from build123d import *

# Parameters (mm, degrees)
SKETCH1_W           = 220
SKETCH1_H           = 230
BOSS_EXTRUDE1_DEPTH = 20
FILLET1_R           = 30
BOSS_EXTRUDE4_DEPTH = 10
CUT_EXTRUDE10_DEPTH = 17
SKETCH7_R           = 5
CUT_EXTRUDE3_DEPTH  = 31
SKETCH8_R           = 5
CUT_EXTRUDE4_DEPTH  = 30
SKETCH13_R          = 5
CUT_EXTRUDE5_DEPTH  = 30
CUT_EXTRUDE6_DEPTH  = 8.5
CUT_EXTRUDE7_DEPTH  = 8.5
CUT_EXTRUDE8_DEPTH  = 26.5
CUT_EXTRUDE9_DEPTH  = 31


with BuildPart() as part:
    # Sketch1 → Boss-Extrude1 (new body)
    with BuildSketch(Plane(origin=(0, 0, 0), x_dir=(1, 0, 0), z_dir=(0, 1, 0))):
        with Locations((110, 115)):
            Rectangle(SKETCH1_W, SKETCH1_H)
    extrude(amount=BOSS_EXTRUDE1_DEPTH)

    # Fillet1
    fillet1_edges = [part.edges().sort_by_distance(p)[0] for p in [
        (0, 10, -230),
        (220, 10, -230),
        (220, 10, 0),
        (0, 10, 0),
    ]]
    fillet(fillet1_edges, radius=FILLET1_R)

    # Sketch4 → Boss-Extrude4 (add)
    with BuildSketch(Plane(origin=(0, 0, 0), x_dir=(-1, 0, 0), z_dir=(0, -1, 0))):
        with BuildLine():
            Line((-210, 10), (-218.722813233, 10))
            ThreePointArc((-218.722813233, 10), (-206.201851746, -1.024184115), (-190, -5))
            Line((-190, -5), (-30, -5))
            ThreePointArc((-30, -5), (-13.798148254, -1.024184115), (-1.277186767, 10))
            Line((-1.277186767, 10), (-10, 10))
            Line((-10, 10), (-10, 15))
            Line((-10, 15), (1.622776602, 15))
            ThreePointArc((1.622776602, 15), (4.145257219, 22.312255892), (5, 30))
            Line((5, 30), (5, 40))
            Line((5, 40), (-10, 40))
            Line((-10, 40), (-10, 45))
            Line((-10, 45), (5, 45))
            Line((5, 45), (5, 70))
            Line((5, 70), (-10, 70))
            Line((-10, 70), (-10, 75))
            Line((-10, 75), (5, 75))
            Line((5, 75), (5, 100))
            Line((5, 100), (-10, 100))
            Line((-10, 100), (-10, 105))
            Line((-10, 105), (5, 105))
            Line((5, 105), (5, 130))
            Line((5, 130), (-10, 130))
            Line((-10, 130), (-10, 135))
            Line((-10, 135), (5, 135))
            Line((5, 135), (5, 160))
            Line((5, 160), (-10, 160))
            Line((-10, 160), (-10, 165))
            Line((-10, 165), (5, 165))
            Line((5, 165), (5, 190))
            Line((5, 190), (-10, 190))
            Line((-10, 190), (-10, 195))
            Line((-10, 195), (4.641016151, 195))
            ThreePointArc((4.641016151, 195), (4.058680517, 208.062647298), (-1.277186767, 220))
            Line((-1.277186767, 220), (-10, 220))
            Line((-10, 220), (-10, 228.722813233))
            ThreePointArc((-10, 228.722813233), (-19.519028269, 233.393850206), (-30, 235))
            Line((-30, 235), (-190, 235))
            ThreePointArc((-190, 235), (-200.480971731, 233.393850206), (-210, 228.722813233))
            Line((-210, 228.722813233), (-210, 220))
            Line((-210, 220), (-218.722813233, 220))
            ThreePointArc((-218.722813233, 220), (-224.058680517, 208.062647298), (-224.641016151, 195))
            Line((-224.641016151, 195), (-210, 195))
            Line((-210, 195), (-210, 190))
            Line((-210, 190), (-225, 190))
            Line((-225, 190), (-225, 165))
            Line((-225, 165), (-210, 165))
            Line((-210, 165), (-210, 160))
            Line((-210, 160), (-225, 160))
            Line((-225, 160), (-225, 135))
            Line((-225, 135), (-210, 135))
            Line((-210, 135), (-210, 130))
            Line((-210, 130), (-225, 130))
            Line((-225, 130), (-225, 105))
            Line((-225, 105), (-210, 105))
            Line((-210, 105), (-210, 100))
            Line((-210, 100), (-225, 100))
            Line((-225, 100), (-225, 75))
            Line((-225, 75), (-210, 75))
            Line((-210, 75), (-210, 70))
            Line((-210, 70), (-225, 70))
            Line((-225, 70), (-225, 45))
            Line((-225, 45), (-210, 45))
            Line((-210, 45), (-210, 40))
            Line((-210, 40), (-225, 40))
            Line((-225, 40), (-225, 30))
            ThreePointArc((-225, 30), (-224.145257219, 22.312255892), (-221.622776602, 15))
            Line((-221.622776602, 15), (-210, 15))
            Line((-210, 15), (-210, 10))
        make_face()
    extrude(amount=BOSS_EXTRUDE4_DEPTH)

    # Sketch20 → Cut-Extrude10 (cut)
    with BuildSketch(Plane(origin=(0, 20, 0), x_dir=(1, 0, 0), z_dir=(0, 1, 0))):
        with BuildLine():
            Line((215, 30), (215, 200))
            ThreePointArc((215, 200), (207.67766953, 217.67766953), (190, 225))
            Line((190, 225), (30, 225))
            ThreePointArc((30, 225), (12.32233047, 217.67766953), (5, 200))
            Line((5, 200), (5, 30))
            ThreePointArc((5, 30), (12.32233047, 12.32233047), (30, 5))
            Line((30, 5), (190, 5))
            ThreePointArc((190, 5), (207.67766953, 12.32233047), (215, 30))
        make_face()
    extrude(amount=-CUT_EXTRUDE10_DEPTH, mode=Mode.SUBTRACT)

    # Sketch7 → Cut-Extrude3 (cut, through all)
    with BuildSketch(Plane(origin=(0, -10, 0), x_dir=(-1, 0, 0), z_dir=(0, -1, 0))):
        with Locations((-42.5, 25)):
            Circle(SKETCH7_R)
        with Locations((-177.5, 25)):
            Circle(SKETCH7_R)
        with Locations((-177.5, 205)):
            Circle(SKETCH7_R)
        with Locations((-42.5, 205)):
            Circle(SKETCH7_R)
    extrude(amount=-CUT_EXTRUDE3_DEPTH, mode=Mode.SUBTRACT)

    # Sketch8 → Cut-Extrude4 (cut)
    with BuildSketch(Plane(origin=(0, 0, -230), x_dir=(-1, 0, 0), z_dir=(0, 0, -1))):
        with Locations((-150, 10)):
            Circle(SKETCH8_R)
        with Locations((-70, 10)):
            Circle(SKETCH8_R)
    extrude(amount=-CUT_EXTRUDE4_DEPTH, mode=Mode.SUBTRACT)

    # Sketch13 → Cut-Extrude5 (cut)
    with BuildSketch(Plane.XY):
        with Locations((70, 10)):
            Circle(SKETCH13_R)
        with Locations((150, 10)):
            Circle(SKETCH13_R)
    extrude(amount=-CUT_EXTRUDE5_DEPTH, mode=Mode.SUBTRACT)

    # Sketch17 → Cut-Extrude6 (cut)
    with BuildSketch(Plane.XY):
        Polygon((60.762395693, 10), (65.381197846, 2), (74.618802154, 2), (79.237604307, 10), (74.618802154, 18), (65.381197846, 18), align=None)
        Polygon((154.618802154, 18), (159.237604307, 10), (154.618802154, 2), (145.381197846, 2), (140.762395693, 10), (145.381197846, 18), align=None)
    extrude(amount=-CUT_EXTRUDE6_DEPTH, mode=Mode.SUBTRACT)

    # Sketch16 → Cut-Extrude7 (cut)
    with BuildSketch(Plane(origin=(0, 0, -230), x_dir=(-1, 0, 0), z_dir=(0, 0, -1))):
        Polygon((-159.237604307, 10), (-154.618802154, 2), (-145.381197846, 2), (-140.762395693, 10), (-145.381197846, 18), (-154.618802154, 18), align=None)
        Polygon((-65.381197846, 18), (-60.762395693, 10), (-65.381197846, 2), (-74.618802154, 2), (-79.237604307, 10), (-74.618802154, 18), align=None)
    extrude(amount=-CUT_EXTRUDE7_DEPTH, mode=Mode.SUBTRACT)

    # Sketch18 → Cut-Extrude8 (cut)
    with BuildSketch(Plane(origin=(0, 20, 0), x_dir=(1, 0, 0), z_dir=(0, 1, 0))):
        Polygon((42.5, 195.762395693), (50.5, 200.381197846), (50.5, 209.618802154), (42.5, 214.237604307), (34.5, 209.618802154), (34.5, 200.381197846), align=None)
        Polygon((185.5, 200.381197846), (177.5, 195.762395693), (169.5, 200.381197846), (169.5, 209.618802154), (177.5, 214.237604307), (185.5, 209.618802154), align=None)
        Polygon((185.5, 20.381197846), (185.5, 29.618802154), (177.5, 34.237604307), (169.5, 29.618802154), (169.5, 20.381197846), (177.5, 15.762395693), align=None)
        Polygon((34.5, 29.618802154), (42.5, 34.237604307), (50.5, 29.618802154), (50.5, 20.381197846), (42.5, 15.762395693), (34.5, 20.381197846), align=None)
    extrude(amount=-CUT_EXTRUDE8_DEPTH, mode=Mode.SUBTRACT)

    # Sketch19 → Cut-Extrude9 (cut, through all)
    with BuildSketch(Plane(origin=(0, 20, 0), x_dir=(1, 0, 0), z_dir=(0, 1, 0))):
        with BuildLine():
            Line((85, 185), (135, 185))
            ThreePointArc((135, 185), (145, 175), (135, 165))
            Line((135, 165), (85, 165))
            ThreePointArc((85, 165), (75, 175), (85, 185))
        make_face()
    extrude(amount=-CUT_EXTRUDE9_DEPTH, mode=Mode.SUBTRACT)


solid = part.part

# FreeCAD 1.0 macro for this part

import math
import FreeCAD as App
import Part
import Sketcher
Q = App.Units.Quantity


def edges_at(feature, points):
    """Names of the edges that pass closest to the given points."""
    edges = feature.Shape.Edges
    near = lambda p: min(range(len(edges)), key=lambda i: edges[i].distToShape(Part.Vertex(*p))[0])
    return sorted({f"Edge{near(p) + 1}" for p in points})

doc = App.newDocument("Part")
params = doc.addObject("Spreadsheet::Sheet", "Params")
for row, (alias, value) in enumerate([
    ("sketch1_width", "220 mm"),
    ("sketch1_height", "230 mm"),
    ("pad1_length", "20 mm"),
    ("fillet_radius", "30 mm"),
    ("sketch2_radius", "35 mm"),
    ("sketch2_width", "160 mm"),
    ("sketch2_width2", "15 mm"),
    ("sketch2_height", "5 mm"),
    ("sketch2_height2", "10 mm"),
    ("pad2_length", "10 mm"),
    ("sketch3_radius", "25 mm"),
    ("sketch3_width", "160 mm"),
    ("sketch3_height", "170 mm"),
    ("pocket1_length", "17 mm"),
    ("sketch4_diameter", "10 mm"),
    ("sketch5_diameter", "10 mm"),
    ("pocket3_length", "30 mm"),
    ("sketch6_diameter", "10 mm"),
    ("pocket4_length", "30 mm"),
    ("pocket5_length", "8.5 mm"),
    ("pocket6_length", "8.5 mm"),
    ("pocket7_length", "26.5 mm"),
    ("sketch10_radius", "10 mm"),
    ("sketch10_width", "50 mm"),
], start=1):
    params.set(f"A{row}", alias)
    params.set(f"B{row}", "=" + value)
    params.setAlias(f"B{row}", alias)

body = doc.addObject("PartDesign::Body", "Body")

# Sketch on XZ plane
sketch1 = body.newObject("Sketcher::SketchObject", "Sketch")
sketch1.AttachmentSupport = (doc.getObject("XZ_Plane"), [""])
sketch1.MapMode = "FlatFace"
sketch1.addGeometry(Part.LineSegment(App.Vector(0, -230, 0), App.Vector(0, 0, 0)), False)
sketch1.addGeometry(Part.LineSegment(App.Vector(0, 0, 0), App.Vector(220, 0, 0)), False)
sketch1.addGeometry(Part.LineSegment(App.Vector(220, 0, 0), App.Vector(220, -230, 0)), False)
sketch1.addGeometry(Part.LineSegment(App.Vector(220, -230, 0), App.Vector(0, -230, 0)), False)
sketch1.addConstraint(Sketcher.Constraint("Coincident", 0, 2, 1, 1))
sketch1.addConstraint(Sketcher.Constraint("Coincident", 1, 2, 2, 1))
sketch1.addConstraint(Sketcher.Constraint("Coincident", 2, 2, 3, 1))
sketch1.addConstraint(Sketcher.Constraint("Coincident", 3, 2, 0, 1))
sketch1.addConstraint(Sketcher.Constraint("Vertical", 0))
sketch1.addConstraint(Sketcher.Constraint("Horizontal", 1))
sketch1.addConstraint(Sketcher.Constraint("Vertical", 2))
sketch1.addConstraint(Sketcher.Constraint("Horizontal", 3))
sketch1.addConstraint(Sketcher.Constraint("Coincident", 0, 2, -1, 1))
sketch1.addConstraint(Sketcher.Constraint("DistanceX", 1, 1, 1, 2, 220.0))
sketch1.addConstraint(Sketcher.Constraint("DistanceY", 0, 1, 0, 2, 230.0))
sketch1.setExpression("Constraints[9]", "Params.sketch1_width")
sketch1.setExpression("Constraints[10]", "Params.sketch1_height")
pad1 = body.newObject("PartDesign::Pad", "Pad")
pad1.Profile = sketch1
pad1.setExpression("Length", "Params.pad1_length")
pad1.Reversed = True
doc.recompute()

fillet = body.newObject("PartDesign::Fillet", "Fillet")
fillet.Base = (pad1, edges_at(pad1, [
    (0, 10, -230),
    (220, 10, -230),
    (220, 10, 0),
    (0, 10, 0),
]))
fillet.setExpression("Radius", "Params.fillet_radius")

# Sketch on XZ plane
sketch2 = body.newObject("Sketcher::SketchObject", "Sketch001")
sketch2.AttachmentSupport = (doc.getObject("XZ_Plane"), [""])
sketch2.MapMode = "FlatFace"
sketch2.addGeometry(Part.LineSegment(App.Vector(210, -10, 0), App.Vector(219, -10, 0)), False)
sketch2.addGeometry(Part.ArcOfCircle(Part.Circle(App.Vector(190, -30, 0), App.Vector(0, 0, 1), 35), math.radians(35), math.radians(90)), False)
sketch2.addGeometry(Part.LineSegment(App.Vector(190, 5, 0), App.Vector(30, 5, 0)), False)
sketch2.addGeometry(Part.ArcOfCircle(Part.Circle(App.Vector(30, -30, 0), App.Vector(0, 0, 1), 35), math.radians(90), math.radians(145)), False)
sketch2.addGeometry(Part.LineSegment(App.Vector(1, -10, 0), App.Vector(10, -10, 0)), False)
sketch2.addGeometry(Part.LineSegment(App.Vector(10, -10, 0), App.Vector(10, -15, 0)), False)
sketch2.addGeometry(Part.LineSegment(App.Vector(10, -15, 0), App.Vector(-2, -15, 0)), False)
sketch2.addGeometry(Part.ArcOfCircle(Part.Circle(App.Vector(30, -30, 0), App.Vector(0, 0, 1), 35), math.radians(155), math.radians(180)), False)
sketch2.addGeometry(Part.LineSegment(App.Vector(-5, -30, 0), App.Vector(-5, -40, 0)), False)
sketch2.addGeometry(Part.LineSegment(App.Vector(-5, -40, 0), App.Vector(10, -40, 0)), False)
sketch2.addGeometry(Part.LineSegment(App.Vector(10, -40, 0), App.Vector(10, -45, 0)), False)
sketch2.addGeometry(Part.LineSegment(App.Vector(10, -45, 0), App.Vector(-5, -45, 0)), False)
sketch2.addGeometry(Part.LineSegment(App.Vector(-5, -45, 0), App.Vector(-5, -70, 0)), False)
sketch2.addGeometry(Part.LineSegment(App.Vector(-5, -70, 0), App.Vector(10, -70, 0)), False)
sketch2.addGeometry(Part.LineSegment(App.Vector(10, -70, 0), App.Vector(10, -75, 0)), False)
sketch2.addGeometry(Part.LineSegment(App.Vector(10, -75, 0), App.Vector(-5, -75, 0)), False)
sketch2.addGeometry(Part.LineSegment(App.Vector(-5, -75, 0), App.Vector(-5, -100, 0)), False)
sketch2.addGeometry(Part.LineSegment(App.Vector(-5, -100, 0), App.Vector(10, -100, 0)), False)
sketch2.addGeometry(Part.LineSegment(App.Vector(10, -100, 0), App.Vector(10, -105, 0)), False)
sketch2.addGeometry(Part.LineSegment(App.Vector(10, -105, 0), App.Vector(-5, -105, 0)), False)
sketch2.addGeometry(Part.LineSegment(App.Vector(-5, -105, 0), App.Vector(-5, -130, 0)), False)
sketch2.addGeometry(Part.LineSegment(App.Vector(-5, -130, 0), App.Vector(10, -130, 0)), False)
sketch2.addGeometry(Part.LineSegment(App.Vector(10, -130, 0), App.Vector(10, -135, 0)), False)
sketch2.addGeometry(Part.LineSegment(App.Vector(10, -135, 0), App.Vector(-5, -135, 0)), False)
sketch2.addGeometry(Part.LineSegment(App.Vector(-5, -135, 0), App.Vector(-5, -160, 0)), False)
sketch2.addGeometry(Part.LineSegment(App.Vector(-5, -160, 0), App.Vector(10, -160, 0)), False)
sketch2.addGeometry(Part.LineSegment(App.Vector(10, -160, 0), App.Vector(10, -165, 0)), False)
sketch2.addGeometry(Part.LineSegment(App.Vector(10, -165, 0), App.Vector(-5, -165, 0)), False)
sketch2.addGeometry(Part.LineSegment(App.Vector(-5, -165, 0), App.Vector(-5, -190, 0)), False)
sketch2.addGeometry(Part.LineSegment(App.Vector(-5, -190, 0), App.Vector(10, -190, 0)), False)
sketch2.addGeometry(Part.LineSegment(App.Vector(10, -190, 0), App.Vector(10, -195, 0)), False)
sketch2.addGeometry(Part.LineSegment(App.Vector(10, -195, 0), App.Vector(-5, -195, 0)), False)
sketch2.addGeometry(Part.ArcOfCircle(Part.Circle(App.Vector(30, -200, 0), App.Vector(0, 0, 1), 35), math.radians(172), math.radians(215)), False)
sketch2.addGeometry(Part.LineSegment(App.Vector(1, -220, 0), App.Vector(10, -220, 0)), False)
sketch2.addGeometry(Part.LineSegment(App.Vector(10, -220, 0), App.Vector(10, -229, 0)), False)
sketch2.addGeometry(Part.ArcOfCircle(Part.Circle(App.Vector(30, -200, 0), App.Vector(0, 0, 1), 35), math.radians(-125), math.radians(-90)), False)
sketch2.addGeometry(Part.LineSegment(App.Vector(30, -235, 0), App.Vector(190, -235, 0)), False)
sketch2.addGeometry(Part.ArcOfCircle(Part.Circle(App.Vector(190, -200, 0), App.Vector(0, 0, 1), 35), math.radians(-90), math.radians(-55)), False)
sketch2.addGeometry(Part.LineSegment(App.Vector(210, -229, 0), App.Vector(210, -220, 0)), False)
sketch2.addGeometry(Part.LineSegment(App.Vector(210, -220, 0), App.Vector(219, -220, 0)), False)
sketch2.addGeometry(Part.ArcOfCircle(Part.Circle(App.Vector(190, -200, 0), App.Vector(0, 0, 1), 35), math.radians(-35), math.radians(8)), False)
sketch2.addGeometry(Part.LineSegment(App.Vector(225, -195, 0), App.Vector(210, -195, 0)), False)
sketch2.addGeometry(Part.LineSegment(App.Vector(210, -195, 0), App.Vector(210, -190, 0)), False)
sketch2.addGeometry(Part.LineSegment(App.Vector(210, -190, 0), App.Vector(225, -190, 0)), False)
sketch2.addGeometry(Part.LineSegment(App.Vector(225, -190, 0), App.Vector(225, -165, 0)), False)
sketch2.addGeometry(Part.LineSegment(App.Vector(225, -165, 0), App.Vector(210, -165, 0)), False)
sketch2.addGeometry(Part.LineSegment(App.Vector(210, -165, 0), App.Vector(210, -160, 0)), False)
sketch2.addGeometry(Part.LineSegment(App.Vector(210, -160, 0), App.Vector(225, -160, 0)), False)
sketch2.addGeometry(Part.LineSegment(App.Vector(225, -160, 0), App.Vector(225, -135, 0)), False)
sketch2.addGeometry(Part.LineSegment(App.Vector(225, -135, 0), App.Vector(210, -135, 0)), False)
sketch2.addGeometry(Part.LineSegment(App.Vector(210, -135, 0), App.Vector(210, -130, 0)), False)
sketch2.addGeometry(Part.LineSegment(App.Vector(210, -130, 0), App.Vector(225, -130, 0)), False)
sketch2.addGeometry(Part.LineSegment(App.Vector(225, -130, 0), App.Vector(225, -105, 0)), False)
sketch2.addGeometry(Part.LineSegment(App.Vector(225, -105, 0), App.Vector(210, -105, 0)), False)
sketch2.addGeometry(Part.LineSegment(App.Vector(210, -105, 0), App.Vector(210, -100, 0)), False)
sketch2.addGeometry(Part.LineSegment(App.Vector(210, -100, 0), App.Vector(225, -100, 0)), False)
sketch2.addGeometry(Part.LineSegment(App.Vector(225, -100, 0), App.Vector(225, -75, 0)), False)
sketch2.addGeometry(Part.LineSegment(App.Vector(225, -75, 0), App.Vector(210, -75, 0)), False)
sketch2.addGeometry(Part.LineSegment(App.Vector(210, -75, 0), App.Vector(210, -70, 0)), False)
sketch2.addGeometry(Part.LineSegment(App.Vector(210, -70, 0), App.Vector(225, -70, 0)), False)
sketch2.addGeometry(Part.LineSegment(App.Vector(225, -70, 0), App.Vector(225, -45, 0)), False)
sketch2.addGeometry(Part.LineSegment(App.Vector(225, -45, 0), App.Vector(210, -45, 0)), False)
sketch2.addGeometry(Part.LineSegment(App.Vector(210, -45, 0), App.Vector(210, -40, 0)), False)
sketch2.addGeometry(Part.LineSegment(App.Vector(210, -40, 0), App.Vector(225, -40, 0)), False)
sketch2.addGeometry(Part.LineSegment(App.Vector(225, -40, 0), App.Vector(225, -30, 0)), False)
sketch2.addGeometry(Part.ArcOfCircle(Part.Circle(App.Vector(190, -30, 0), App.Vector(0, 0, 1), 35), math.radians(0), math.radians(25)), False)
sketch2.addGeometry(Part.LineSegment(App.Vector(222, -15, 0), App.Vector(210, -15, 0)), False)
sketch2.addGeometry(Part.LineSegment(App.Vector(210, -15, 0), App.Vector(210, -10, 0)), False)
sketch2.addConstraint(Sketcher.Constraint("Coincident", 0, 2, 1, 1))
sketch2.addConstraint(Sketcher.Constraint("Tangent", 1, 2, 2, 1))
sketch2.addConstraint(Sketcher.Constraint("Tangent", 2, 2, 3, 1))
sketch2.addConstraint(Sketcher.Constraint("Coincident", 3, 2, 4, 1))
sketch2.addConstraint(Sketcher.Constraint("Coincident", 4, 2, 5, 1))
sketch2.addConstraint(Sketcher.Constraint("Coincident", 5, 2, 6, 1))
sketch2.addConstraint(Sketcher.Constraint("Coincident", 6, 2, 7, 1))
sketch2.addConstraint(Sketcher.Constraint("Tangent", 7, 2, 8, 1))
sketch2.addConstraint(Sketcher.Constraint("Coincident", 8, 2, 9, 1))
sketch2.addConstraint(Sketcher.Constraint("Coincident", 9, 2, 10, 1))
sketch2.addConstraint(Sketcher.Constraint("Coincident", 10, 2, 11, 1))
sketch2.addConstraint(Sketcher.Constraint("Coincident", 11, 2, 12, 1))
sketch2.addConstraint(Sketcher.Constraint("Coincident", 12, 2, 13, 1))
sketch2.addConstraint(Sketcher.Constraint("Coincident", 13, 2, 14, 1))
sketch2.addConstraint(Sketcher.Constraint("Coincident", 14, 2, 15, 1))
sketch2.addConstraint(Sketcher.Constraint("Coincident", 15, 2, 16, 1))
sketch2.addConstraint(Sketcher.Constraint("Coincident", 16, 2, 17, 1))
sketch2.addConstraint(Sketcher.Constraint("Coincident", 17, 2, 18, 1))
sketch2.addConstraint(Sketcher.Constraint("Coincident", 18, 2, 19, 1))
sketch2.addConstraint(Sketcher.Constraint("Coincident", 19, 2, 20, 1))
sketch2.addConstraint(Sketcher.Constraint("Coincident", 20, 2, 21, 1))
sketch2.addConstraint(Sketcher.Constraint("Coincident", 21, 2, 22, 1))
sketch2.addConstraint(Sketcher.Constraint("Coincident", 22, 2, 23, 1))
sketch2.addConstraint(Sketcher.Constraint("Coincident", 23, 2, 24, 1))
sketch2.addConstraint(Sketcher.Constraint("Coincident", 24, 2, 25, 1))
sketch2.addConstraint(Sketcher.Constraint("Coincident", 25, 2, 26, 1))
sketch2.addConstraint(Sketcher.Constraint("Coincident", 26, 2, 27, 1))
sketch2.addConstraint(Sketcher.Constraint("Coincident", 27, 2, 28, 1))
sketch2.addConstraint(Sketcher.Constraint("Coincident", 28, 2, 29, 1))
sketch2.addConstraint(Sketcher.Constraint("Coincident", 29, 2, 30, 1))
sketch2.addConstraint(Sketcher.Constraint("Coincident", 30, 2, 31, 1))
sketch2.addConstraint(Sketcher.Constraint("Coincident", 31, 2, 32, 1))
sketch2.addConstraint(Sketcher.Constraint("Coincident", 32, 2, 33, 1))
sketch2.addConstraint(Sketcher.Constraint("Coincident", 33, 2, 34, 1))
sketch2.addConstraint(Sketcher.Constraint("Coincident", 34, 2, 35, 1))
sketch2.addConstraint(Sketcher.Constraint("Tangent", 35, 2, 36, 1))
sketch2.addConstraint(Sketcher.Constraint("Tangent", 36, 2, 37, 1))
sketch2.addConstraint(Sketcher.Constraint("Coincident", 37, 2, 38, 1))
sketch2.addConstraint(Sketcher.Constraint("Coincident", 38, 2, 39, 1))
sketch2.addConstraint(Sketcher.Constraint("Coincident", 39, 2, 40, 1))
sketch2.addConstraint(Sketcher.Constraint("Coincident", 40, 2, 41, 1))
sketch2.addConstraint(Sketcher.Constraint("Coincident", 41, 2, 42, 1))
sketch2.addConstraint(Sketcher.Constraint("Coincident", 42, 2, 43, 1))
sketch2.addConstraint(Sketcher.Constraint("Coincident", 43, 2, 44, 1))
sketch2.addConstraint(Sketcher.Constraint("Coincident", 44, 2, 45, 1))
sketch2.addConstraint(Sketcher.Constraint("Coincident", 45, 2, 46, 1))
sketch2.addConstraint(Sketcher.Constraint("Coincident", 46, 2, 47, 1))
sketch2.addConstraint(Sketcher.Constraint("Coincident", 47, 2, 48, 1))
sketch2.addConstraint(Sketcher.Constraint("Coincident", 48, 2, 49, 1))
sketch2.addConstraint(Sketcher.Constraint("Coincident", 49, 2, 50, 1))
sketch2.addConstraint(Sketcher.Constraint("Coincident", 50, 2, 51, 1))
sketch2.addConstraint(Sketcher.Constraint("Coincident", 51, 2, 52, 1))
sketch2.addConstraint(Sketcher.Constraint("Coincident", 52, 2, 53, 1))
sketch2.addConstraint(Sketcher.Constraint("Coincident", 53, 2, 54, 1))
sketch2.addConstraint(Sketcher.Constraint("Coincident", 54, 2, 55, 1))
sketch2.addConstraint(Sketcher.Constraint("Coincident", 55, 2, 56, 1))
sketch2.addConstraint(Sketcher.Constraint("Coincident", 56, 2, 57, 1))
sketch2.addConstraint(Sketcher.Constraint("Coincident", 57, 2, 58, 1))
sketch2.addConstraint(Sketcher.Constraint("Coincident", 58, 2, 59, 1))
sketch2.addConstraint(Sketcher.Constraint("Coincident", 59, 2, 60, 1))
sketch2.addConstraint(Sketcher.Constraint("Coincident", 60, 2, 61, 1))
sketch2.addConstraint(Sketcher.Constraint("Coincident", 61, 2, 62, 1))
sketch2.addConstraint(Sketcher.Constraint("Coincident", 62, 2, 63, 1))
sketch2.addConstraint(Sketcher.Constraint("Coincident", 63, 2, 64, 1))
sketch2.addConstraint(Sketcher.Constraint("Tangent", 64, 2, 65, 1))
sketch2.addConstraint(Sketcher.Constraint("Coincident", 65, 2, 66, 1))
sketch2.addConstraint(Sketcher.Constraint("Coincident", 66, 2, 67, 1))
sketch2.addConstraint(Sketcher.Constraint("Coincident", 67, 2, 0, 1))
sketch2.addConstraint(Sketcher.Constraint("Horizontal", 0))
sketch2.addConstraint(Sketcher.Constraint("Horizontal", 2))
sketch2.addConstraint(Sketcher.Constraint("Horizontal", 4))
sketch2.addConstraint(Sketcher.Constraint("Vertical", 5))
sketch2.addConstraint(Sketcher.Constraint("Horizontal", 6))
sketch2.addConstraint(Sketcher.Constraint("Vertical", 8))
sketch2.addConstraint(Sketcher.Constraint("Horizontal", 9))
sketch2.addConstraint(Sketcher.Constraint("Vertical", 10))
sketch2.addConstraint(Sketcher.Constraint("Horizontal", 11))
sketch2.addConstraint(Sketcher.Constraint("Vertical", 12))
sketch2.addConstraint(Sketcher.Constraint("Horizontal", 13))
sketch2.addConstraint(Sketcher.Constraint("Vertical", 14))
sketch2.addConstraint(Sketcher.Constraint("Horizontal", 15))
sketch2.addConstraint(Sketcher.Constraint("Vertical", 16))
sketch2.addConstraint(Sketcher.Constraint("Horizontal", 17))
sketch2.addConstraint(Sketcher.Constraint("Vertical", 18))
sketch2.addConstraint(Sketcher.Constraint("Horizontal", 19))
sketch2.addConstraint(Sketcher.Constraint("Vertical", 20))
sketch2.addConstraint(Sketcher.Constraint("Horizontal", 21))
sketch2.addConstraint(Sketcher.Constraint("Vertical", 22))
sketch2.addConstraint(Sketcher.Constraint("Horizontal", 23))
sketch2.addConstraint(Sketcher.Constraint("Vertical", 24))
sketch2.addConstraint(Sketcher.Constraint("Horizontal", 25))
sketch2.addConstraint(Sketcher.Constraint("Vertical", 26))
sketch2.addConstraint(Sketcher.Constraint("Horizontal", 27))
sketch2.addConstraint(Sketcher.Constraint("Vertical", 28))
sketch2.addConstraint(Sketcher.Constraint("Horizontal", 29))
sketch2.addConstraint(Sketcher.Constraint("Vertical", 30))
sketch2.addConstraint(Sketcher.Constraint("Horizontal", 31))
sketch2.addConstraint(Sketcher.Constraint("Horizontal", 33))
sketch2.addConstraint(Sketcher.Constraint("Vertical", 34))
sketch2.addConstraint(Sketcher.Constraint("Horizontal", 36))
sketch2.addConstraint(Sketcher.Constraint("Vertical", 38))
sketch2.addConstraint(Sketcher.Constraint("Horizontal", 39))
sketch2.addConstraint(Sketcher.Constraint("Horizontal", 41))
sketch2.addConstraint(Sketcher.Constraint("Vertical", 42))
sketch2.addConstraint(Sketcher.Constraint("Horizontal", 43))
sketch2.addConstraint(Sketcher.Constraint("Vertical", 44))
sketch2.addConstraint(Sketcher.Constraint("Horizontal", 45))
sketch2.addConstraint(Sketcher.Constraint("Vertical", 46))
sketch2.addConstraint(Sketcher.Constraint("Horizontal", 47))
sketch2.addConstraint(Sketcher.Constraint("Vertical", 48))
sketch2.addConstraint(Sketcher.Constraint("Horizontal", 49))
sketch2.addConstraint(Sketcher.Constraint("Vertical", 50))
sketch2.addConstraint(Sketcher.Constraint("Horizontal", 51))
sketch2.addConstraint(Sketcher.Constraint("Vertical", 52))
sketch2.addConstraint(Sketcher.Constraint("Horizontal", 53))
sketch2.addConstraint(Sketcher.Constraint("Vertical", 54))
sketch2.addConstraint(Sketcher.Constraint("Horizontal", 55))
sketch2.addConstraint(Sketcher.Constraint("Vertical", 56))
sketch2.addConstraint(Sketcher.Constraint("Horizontal", 57))
sketch2.addConstraint(Sketcher.Constraint("Vertical", 58))
sketch2.addConstraint(Sketcher.Constraint("Horizontal", 59))
sketch2.addConstraint(Sketcher.Constraint("Vertical", 60))
sketch2.addConstraint(Sketcher.Constraint("Horizontal", 61))
sketch2.addConstraint(Sketcher.Constraint("Vertical", 62))
sketch2.addConstraint(Sketcher.Constraint("Horizontal", 63))
sketch2.addConstraint(Sketcher.Constraint("Vertical", 64))
sketch2.addConstraint(Sketcher.Constraint("Horizontal", 66))
sketch2.addConstraint(Sketcher.Constraint("Vertical", 67))
sketch2.addConstraint(Sketcher.Constraint("Coincident", 7, 3, 3, 3))
sketch2.addConstraint(Sketcher.Constraint("Coincident", 35, 3, 32, 3))
sketch2.addConstraint(Sketcher.Constraint("Coincident", 40, 3, 37, 3))
sketch2.addConstraint(Sketcher.Constraint("Coincident", 65, 3, 1, 3))
sketch2.addConstraint(Sketcher.Constraint("Equal", 1, 3))
sketch2.addConstraint(Sketcher.Constraint("Equal", 3, 7))
sketch2.addConstraint(Sketcher.Constraint("Equal", 7, 32))
sketch2.addConstraint(Sketcher.Constraint("Equal", 32, 35))
sketch2.addConstraint(Sketcher.Constraint("Equal", 35, 37))
sketch2.addConstraint(Sketcher.Constraint("Equal", 37, 40))
sketch2.addConstraint(Sketcher.Constraint("Equal", 40, 65))
sketch2.addConstraint(Sketcher.Constraint("Horizontal", 0, 2, 3, 2))
sketch2.addConstraint(Sketcher.Constraint("Horizontal", 34, 2, 37, 2))
sketch2.addConstraint(Sketcher.Constraint("Horizontal", 33, 2, 38, 2))
sketch2.addConstraint(Sketcher.Constraint("Horizontal", 31, 2, 40, 2))
sketch2.addConstraint(Sketcher.Constraint("Horizontal", 29, 2, 42, 2))
sketch2.addConstraint(Sketcher.Constraint("Horizontal", 27, 2, 44, 2))
sketch2.addConstraint(Sketcher.Constraint("Horizontal", 25, 2, 46, 2))
sketch2.addConstraint(Sketcher.Constraint("Horizontal", 23, 2, 48, 2))
sketch2.addConstraint(Sketcher.Constraint("Horizontal", 21, 2, 50, 2))
sketch2.addConstraint(Sketcher.Constraint("Horizontal", 19, 2, 52, 2))
sketch2.addConstraint(Sketcher.Constraint("Horizontal", 17, 2, 54, 2))
sketch2.addConstraint(Sketcher.Constraint("Horizontal", 15, 2, 56, 2))
sketch2.addConstraint(Sketcher.Constraint("Horizontal", 13, 2, 58, 2))
sketch2.addConstraint(Sketcher.Constraint("Horizontal", 11, 2, 60, 2))
sketch2.addConstraint(Sketcher.Constraint("Horizontal", 9, 2, 62, 2))
sketch2.addConstraint(Sketcher.Constraint("Horizontal", 6, 2, 65, 2))
sketch2.addConstraint(Sketcher.Constraint("Vertical", 7, 3, 32, 3))
sketch2.addConstraint(Sketcher.Constraint("Vertical", 1, 3, 37, 3))
sketch2.addConstraint(Sketcher.Constraint("Vertical", 5, 2, 9, 2))
sketch2.addConstraint(Sketcher.Constraint("Vertical", 8, 2, 11, 2))
sketch2.addConstraint(Sketcher.Constraint("Vertical", 10, 2, 13, 2))
sketch2.addConstraint(Sketcher.Constraint("Vertical", 12, 2, 15, 2))
sketch2.addConstraint(Sketcher.Constraint("Vertical", 14, 2, 17, 2))
sketch2.addConstraint(Sketcher.Constraint("Vertical", 16, 2, 19, 2))
sketch2.addConstraint(Sketcher.Constraint("Vertical", 18, 2, 21, 2))
sketch2.addConstraint(Sketcher.Constraint("Vertical", 20, 2, 23, 2))
sketch2.addConstraint(Sketcher.Constraint("Vertical", 22, 2, 25, 2))
sketch2.addConstraint(Sketcher.Constraint("Vertical", 24, 2, 27, 2))
sketch2.addConstraint(Sketcher.Constraint("Vertical", 26, 2, 29, 2))
sketch2.addConstraint(Sketcher.Constraint("Vertical", 3, 2, 32, 2))
sketch2.addConstraint(Sketcher.Constraint("Vertical", 30, 2, 33, 2))
sketch2.addConstraint(Sketcher.Constraint("Vertical", 38, 2, 41, 2))
sketch2.addConstraint(Sketcher.Constraint("Vertical", 42, 2, 45, 2))
sketch2.addConstraint(Sketcher.Constraint("Vertical", 44, 2, 47, 2))
sketch2.addConstraint(Sketcher.Constraint("Vertical", 46, 2, 49, 2))
sketch2.addConstraint(Sketcher.Constraint("Vertical", 48, 2, 51, 2))
sketch2.addConstraint(Sketcher.Constraint("Vertical", 50, 2, 53, 2))
sketch2.addConstraint(Sketcher.Constraint("Vertical", 52, 2, 55, 2))
sketch2.addConstraint(Sketcher.Constraint("Vertical", 54, 2, 57, 2))
sketch2.addConstraint(Sketcher.Constraint("Vertical", 56, 2, 59, 2))
sketch2.addConstraint(Sketcher.Constraint("Vertical", 58, 2, 61, 2))
sketch2.addConstraint(Sketcher.Constraint("Vertical", 60, 2, 63, 2))
sketch2.addConstraint(Sketcher.Constraint("Vertical", 62, 2, 66, 2))
sketch2.addConstraint(Sketcher.Constraint("Equal", 5, 10))
sketch2.addConstraint(Sketcher.Constraint("Equal", 10, 14))
sketch2.addConstraint(Sketcher.Constraint("Equal", 12, 16))
sketch2.addConstraint(Sketcher.Constraint("Equal", 14, 18))
sketch2.addConstraint(Sketcher.Constraint("Equal", 16, 20))
sketch2.addConstraint(Sketcher.Constraint("Equal", 18, 22))
sketch2.addConstraint(Sketcher.Constraint("Equal", 20, 24))
sketch2.addConstraint(Sketcher.Constraint("Equal", 22, 26))
sketch2.addConstraint(Sketcher.Constraint("Equal", 24, 28))
sketch2.addConstraint(Sketcher.Constraint("Equal", 26, 30))
sketch2.addConstraint(Sketcher.Constraint("Equal", 39, 34))
sketch2.addConstraint(Sketcher.Constraint("Radius", 1, 35.0))
sketch2.addConstraint(Sketcher.Constraint("DistanceX", 2, 2, 2, 1, 160.0))
sketch2.addConstraint(Sketcher.Constraint("DistanceX", 9, 1, 9, 2, 15.0))
sketch2.addConstraint(Sketcher.Constraint("DistanceY", 5, 2, 5, 1, 5.0))
sketch2.addConstraint(Sketcher.Constraint("DistanceY", 8, 2, 8, 1, 10.0))
sketch2.addConstraint(Sketcher.Constraint("DistanceY", 12, 2, 12, 1, 25.0))
sketch2.addConstraint(Sketcher.Constraint("DistanceX", -1, 1, 1, 3, 190.0))
sketch2.addConstraint(Sketcher.Constraint("DistanceY", 1, 3, -1, 1, 30.0))
sketch2.addConstraint(Sketcher.Constraint("DistanceY", 32, 3, -1, 1, 200.0))
sketch2.setExpression("Constraints[193]", "Params.sketch2_radius")
sketch2.setExpression("Constraints[194]", "Params.sketch2_width")
sketch2.setExpression("Constraints[195]", "Params.sketch2_width2")
sketch2.setExpression("Constraints[196]", "Params.sketch2_height")
sketch2.setExpression("Constraints[197]", "Params.sketch2_height2")
pad2 = body.newObject("PartDesign::Pad", "Pad001")
pad2.Profile = sketch2
pad2.setExpression("Length", "Params.pad2_length")

# Sketch on XZ plane
sketch3 = body.newObject("Sketcher::SketchObject", "Sketch002")
sketch3.AttachmentSupport = (doc.getObject("XZ_Plane"), [""])
sketch3.MapMode = "FlatFace"
sketch3.AttachmentOffset = App.Placement(App.Vector(0, 0, -20), App.Rotation())
sketch3.addGeometry(Part.LineSegment(App.Vector(215, -30, 0), App.Vector(215, -200, 0)), False)
sketch3.addGeometry(Part.ArcOfCircle(Part.Circle(App.Vector(190, -200, 0), App.Vector(0, 0, 1), 25), math.radians(-90), math.radians(0)), False)
sketch3.addGeometry(Part.LineSegment(App.Vector(190, -225, 0), App.Vector(30, -225, 0)), False)
sketch3.addGeometry(Part.ArcOfCircle(Part.Circle(App.Vector(30, -200, 0), App.Vector(0, 0, 1), 25), math.radians(180), math.radians(270)), False)
sketch3.addGeometry(Part.LineSegment(App.Vector(5, -200, 0), App.Vector(5, -30, 0)), False)
sketch3.addGeometry(Part.ArcOfCircle(Part.Circle(App.Vector(30, -30, 0), App.Vector(0, 0, 1), 25), math.radians(90), math.radians(180)), False)
sketch3.addGeometry(Part.LineSegment(App.Vector(30, -5, 0), App.Vector(190, -5, 0)), False)
sketch3.addGeometry(Part.ArcOfCircle(Part.Circle(App.Vector(190, -30, 0), App.Vector(0, 0, 1), 25), math.radians(0), math.radians(90)), False)
sketch3.addConstraint(Sketcher.Constraint("Tangent", 0, 2, 1, 2))
sketch3.addConstraint(Sketcher.Constraint("Tangent", 1, 1, 2, 1))
sketch3.addConstraint(Sketcher.Constraint("Tangent", 2, 2, 3, 2))
sketch3.addConstraint(Sketcher.Constraint("Tangent", 3, 1, 4, 1))
sketch3.addConstraint(Sketcher.Constraint("Tangent", 4, 2, 5, 2))
sketch3.addConstraint(Sketcher.Constraint("Tangent", 5, 1, 6, 1))
sketch3.addConstraint(Sketcher.Constraint("Tangent", 6, 2, 7, 2))
sketch3.addConstraint(Sketcher.Constraint("Tangent", 7, 1, 0, 1))
sketch3.addConstraint(Sketcher.Constraint("Vertical", 0))
sketch3.addConstraint(Sketcher.Constraint("Horizontal", 2))
sketch3.addConstraint(Sketcher.Constraint("Vertical", 4))
sketch3.addConstraint(Sketcher.Constraint("Horizontal", 6))
sketch3.addConstraint(Sketcher.Constraint("Equal", 1, 3))
sketch3.addConstraint(Sketcher.Constraint("Equal", 3, 5))
sketch3.addConstraint(Sketcher.Constraint("Equal", 5, 7))
sketch3.addConstraint(Sketcher.Constraint("Radius", 1, 25.0))
sketch3.addConstraint(Sketcher.Constraint("DistanceX", 2, 2, 2, 1, 160.0))
sketch3.addConstraint(Sketcher.Constraint("DistanceY", 0, 2, 0, 1, 170.0))
sketch3.addConstraint(Sketcher.Constraint("DistanceX", -1, 1, 1, 3, 190.0))
sketch3.addConstraint(Sketcher.Constraint("DistanceY", 1, 3, -1, 1, 200.0))
sketch3.setExpression("Constraints[15]", "Params.sketch3_radius")
sketch3.setExpression("Constraints[16]", "Params.sketch3_width")
sketch3.setExpression("Constraints[17]", "Params.sketch3_height")
pocket1 = body.newObject("PartDesign::Pocket", "Pocket")
pocket1.Profile = sketch3
pocket1.setExpression("Length", "Params.pocket1_length")
pocket1.Reversed = True

# Sketch on XZ plane
sketch4 = body.newObject("Sketcher::SketchObject", "Sketch003")
sketch4.AttachmentSupport = (doc.getObject("XZ_Plane"), [""])
sketch4.MapMode = "FlatFace"
sketch4.AttachmentOffset = App.Placement(App.Vector(0, 0, 10), App.Rotation())
sketch4.addGeometry(Part.Circle(App.Vector(42, -25, 0), App.Vector(0, 0, 1), 5), False)
sketch4.addGeometry(Part.Circle(App.Vector(178, -25, 0), App.Vector(0, 0, 1), 5), False)
sketch4.addGeometry(Part.Circle(App.Vector(178, -205, 0), App.Vector(0, 0, 1), 5), False)
sketch4.addGeometry(Part.Circle(App.Vector(42, -205, 0), App.Vector(0, 0, 1), 5), False)
sketch4.addConstraint(Sketcher.Constraint("Equal", 0, 1))
sketch4.addConstraint(Sketcher.Constraint("Equal", 1, 2))
sketch4.addConstraint(Sketcher.Constraint("Equal", 2, 3))
sketch4.addConstraint(Sketcher.Constraint("Horizontal", 0, 3, 1, 3))
sketch4.addConstraint(Sketcher.Constraint("Horizontal", 2, 3, 3, 3))
sketch4.addConstraint(Sketcher.Constraint("Vertical", 1, 3, 2, 3))
sketch4.addConstraint(Sketcher.Constraint("Vertical", 0, 3, 3, 3))
sketch4.addConstraint(Sketcher.Constraint("Diameter", 0, 10.0))
sketch4.addConstraint(Sketcher.Constraint("DistanceY", 0, 3, -1, 1, 25.0))
sketch4.addConstraint(Sketcher.Constraint("DistanceY", 2, 3, -1, 1, 205.0))
sketch4.addConstraint(Sketcher.Constraint("DistanceX", 0, 3, 1, 3, 135.0))
sketch4.addConstraint(Sketcher.Constraint("DistanceX", -1, 1, 0, 3, 42.5))
sketch4.setExpression("Constraints[7]", "Params.sketch4_diameter")
pocket2 = body.newObject("PartDesign::Pocket", "Pocket001")
pocket2.Profile = sketch4
pocket2.Type = "ThroughAll"

# Sketch on XY plane
sketch5 = body.newObject("Sketcher::SketchObject", "Sketch004")
sketch5.AttachmentSupport = (doc.getObject("XY_Plane"), [""])
sketch5.MapMode = "FlatFace"
sketch5.AttachmentOffset = App.Placement(App.Vector(0, 0, -230), App.Rotation())
sketch5.addGeometry(Part.Circle(App.Vector(150, 10, 0), App.Vector(0, 0, 1), 5), False)
sketch5.addGeometry(Part.Circle(App.Vector(70, 10, 0), App.Vector(0, 0, 1), 5), False)
sketch5.addConstraint(Sketcher.Constraint("Equal", 0, 1))
sketch5.addConstraint(Sketcher.Constraint("Horizontal", 0, 3, 1, 3))
sketch5.addConstraint(Sketcher.Constraint("Diameter", 0, 10.0))
sketch5.addConstraint(Sketcher.Constraint("DistanceX", -1, 1, 0, 3, 150.0))
sketch5.addConstraint(Sketcher.Constraint("DistanceY", -1, 1, 0, 3, 10.0))
sketch5.addConstraint(Sketcher.Constraint("DistanceX", -1, 1, 1, 3, 70.0))
sketch5.setExpression("Constraints[2]", "Params.sketch5_diameter")
pocket3 = body.newObject("PartDesign::Pocket", "Pocket002")
pocket3.Profile = sketch5
pocket3.setExpression("Length", "Params.pocket3_length")
pocket3.Reversed = True

# Sketch on XY plane
sketch6 = body.newObject("Sketcher::SketchObject", "Sketch005")
sketch6.AttachmentSupport = (doc.getObject("XY_Plane"), [""])
sketch6.MapMode = "FlatFace"
sketch6.addGeometry(Part.Circle(App.Vector(70, 10, 0), App.Vector(0, 0, 1), 5), False)
sketch6.addGeometry(Part.Circle(App.Vector(150, 10, 0), App.Vector(0, 0, 1), 5), False)
sketch6.addConstraint(Sketcher.Constraint("Equal", 0, 1))
sketch6.addConstraint(Sketcher.Constraint("Horizontal", 0, 3, 1, 3))
sketch6.addConstraint(Sketcher.Constraint("Diameter", 0, 10.0))
sketch6.addConstraint(Sketcher.Constraint("DistanceX", -1, 1, 0, 3, 70.0))
sketch6.addConstraint(Sketcher.Constraint("DistanceY", -1, 1, 0, 3, 10.0))
sketch6.addConstraint(Sketcher.Constraint("DistanceX", -1, 1, 1, 3, 150.0))
sketch6.setExpression("Constraints[2]", "Params.sketch6_diameter")
pocket4 = body.newObject("PartDesign::Pocket", "Pocket003")
pocket4.Profile = sketch6
pocket4.setExpression("Length", "Params.pocket4_length")

# Sketch on XY plane
sketch7 = body.newObject("Sketcher::SketchObject", "Sketch006")
sketch7.AttachmentSupport = (doc.getObject("XY_Plane"), [""])
sketch7.MapMode = "FlatFace"
sketch7.addGeometry(Part.LineSegment(App.Vector(61, 10, 0), App.Vector(65, 2, 0)), False)
sketch7.addGeometry(Part.LineSegment(App.Vector(65, 2, 0), App.Vector(75, 2, 0)), False)
sketch7.addGeometry(Part.LineSegment(App.Vector(75, 2, 0), App.Vector(79, 10, 0)), False)
sketch7.addGeometry(Part.LineSegment(App.Vector(79, 10, 0), App.Vector(75, 18, 0)), False)
sketch7.addGeometry(Part.LineSegment(App.Vector(75, 18, 0), App.Vector(65, 18, 0)), False)
sketch7.addGeometry(Part.LineSegment(App.Vector(65, 18, 0), App.Vector(61, 10, 0)), False)
sketch7.addGeometry(Part.LineSegment(App.Vector(159, 10, 0), App.Vector(155, 18, 0)), False)
sketch7.addGeometry(Part.LineSegment(App.Vector(155, 18, 0), App.Vector(145, 18, 0)), False)
sketch7.addGeometry(Part.LineSegment(App.Vector(145, 18, 0), App.Vector(141, 10, 0)), False)
sketch7.addGeometry(Part.LineSegment(App.Vector(141, 10, 0), App.Vector(145, 2, 0)), False)
sketch7.addGeometry(Part.LineSegment(App.Vector(145, 2, 0), App.Vector(155, 2, 0)), False)
sketch7.addGeometry(Part.LineSegment(App.Vector(155, 2, 0), App.Vector(159, 10, 0)), False)
sketch7.addConstraint(Sketcher.Constraint("Coincident", 0, 2, 1, 1))
sketch7.addConstraint(Sketcher.Constraint("Coincident", 1, 2, 2, 1))
sketch7.addConstraint(Sketcher.Constraint("Coincident", 2, 2, 3, 1))
sketch7.addConstraint(Sketcher.Constraint("Coincident", 3, 2, 4, 1))
sketch7.addConstraint(Sketcher.Constraint("Coincident", 4, 2, 5, 1))
sketch7.addConstraint(Sketcher.Constraint("Coincident", 5, 2, 0, 1))
sketch7.addConstraint(Sketcher.Constraint("Coincident", 6, 2, 7, 1))
sketch7.addConstraint(Sketcher.Constraint("Coincident", 7, 2, 8, 1))
sketch7.addConstraint(Sketcher.Constraint("Coincident", 8, 2, 9, 1))
sketch7.addConstraint(Sketcher.Constraint("Coincident", 9, 2, 10, 1))
sketch7.addConstraint(Sketcher.Constraint("Coincident", 10, 2, 11, 1))
sketch7.addConstraint(Sketcher.Constraint("Coincident", 11, 2, 6, 1))
sketch7.addConstraint(Sketcher.Constraint("Horizontal", 1))
sketch7.addConstraint(Sketcher.Constraint("Horizontal", 4))
sketch7.addConstraint(Sketcher.Constraint("Horizontal", 7))
sketch7.addConstraint(Sketcher.Constraint("Horizontal", 10))
sketch7.addConstraint(Sketcher.Constraint("Parallel", 0, 3))
sketch7.addConstraint(Sketcher.Constraint("Parallel", 2, 5))
sketch7.addConstraint(Sketcher.Constraint("Parallel", 3, 6))
sketch7.addConstraint(Sketcher.Constraint("Parallel", 5, 8))
sketch7.addConstraint(Sketcher.Constraint("Parallel", 6, 9))
sketch7.addConstraint(Sketcher.Constraint("Parallel", 8, 11))
sketch7.addConstraint(Sketcher.Constraint("Horizontal", 2, 2, 5, 2))
sketch7.addConstraint(Sketcher.Constraint("Horizontal", 4, 2, 6, 2))
sketch7.addConstraint(Sketcher.Constraint("Horizontal", 5, 2, 8, 2))
sketch7.addConstraint(Sketcher.Constraint("Horizontal", 1, 2, 9, 2))
sketch7.addConstraint(Sketcher.Constraint("Horizontal", 8, 2, 11, 2))
sketch7.addConstraint(Sketcher.Constraint("Vertical", 1, 2, 3, 2))
sketch7.addConstraint(Sketcher.Constraint("Vertical", 0, 2, 4, 2))
sketch7.addConstraint(Sketcher.Constraint("Equal", 4, 7))
sketch7.addConstraint(Sketcher.Constraint("Angle", 0, Q("-60 deg")))
sketch7.addConstraint(Sketcher.Constraint("DistanceY", -1, 1, 0, 2, 2.0))
sketch7.addConstraint(Sketcher.Constraint("DistanceY", -1, 1, 2, 2, 10.0))
sketch7.addConstraint(Sketcher.Constraint("DistanceX", 3, 2, 6, 2, 80.0))
sketch7.addConstraint(Sketcher.Constraint("DistanceX", 1, 1, 1, 2, 9.237604))
sketch7.addConstraint(Sketcher.Constraint("DistanceX", -1, 1, 0, 2, 65.381198))
pocket5 = body.newObject("PartDesign::Pocket", "Pocket004")
pocket5.Profile = sketch7
pocket5.setExpression("Length", "Params.pocket5_length")

# Sketch on XY plane
sketch8 = body.newObject("Sketcher::SketchObject", "Sketch007")
sketch8.AttachmentSupport = (doc.getObject("XY_Plane"), [""])
sketch8.MapMode = "FlatFace"
sketch8.AttachmentOffset = App.Placement(App.Vector(0, 0, -230), App.Rotation())
sketch8.addGeometry(Part.LineSegment(App.Vector(159, 10, 0), App.Vector(155, 2, 0)), False)
sketch8.addGeometry(Part.LineSegment(App.Vector(155, 2, 0), App.Vector(145, 2, 0)), False)
sketch8.addGeometry(Part.LineSegment(App.Vector(145, 2, 0), App.Vector(141, 10, 0)), False)
sketch8.addGeometry(Part.LineSegment(App.Vector(141, 10, 0), App.Vector(145, 18, 0)), False)
sketch8.addGeometry(Part.LineSegment(App.Vector(145, 18, 0), App.Vector(155, 18, 0)), False)
sketch8.addGeometry(Part.LineSegment(App.Vector(155, 18, 0), App.Vector(159, 10, 0)), False)
sketch8.addGeometry(Part.LineSegment(App.Vector(61, 10, 0), App.Vector(65, 18, 0)), False)
sketch8.addGeometry(Part.LineSegment(App.Vector(65, 18, 0), App.Vector(75, 18, 0)), False)
sketch8.addGeometry(Part.LineSegment(App.Vector(75, 18, 0), App.Vector(79, 10, 0)), False)
sketch8.addGeometry(Part.LineSegment(App.Vector(79, 10, 0), App.Vector(75, 2, 0)), False)
sketch8.addGeometry(Part.LineSegment(App.Vector(75, 2, 0), App.Vector(65, 2, 0)), False)
sketch8.addGeometry(Part.LineSegment(App.Vector(65, 2, 0), App.Vector(61, 10, 0)), False)
sketch8.addConstraint(Sketcher.Constraint("Coincident", 0, 2, 1, 1))
sketch8.addConstraint(Sketcher.Constraint("Coincident", 1, 2, 2, 1))
sketch8.addConstraint(Sketcher.Constraint("Coincident", 2, 2, 3, 1))
sketch8.addConstraint(Sketcher.Constraint("Coincident", 3, 2, 4, 1))
sketch8.addConstraint(Sketcher.Constraint("Coincident", 4, 2, 5, 1))
sketch8.addConstraint(Sketcher.Constraint("Coincident", 5, 2, 0, 1))
sketch8.addConstraint(Sketcher.Constraint("Coincident", 6, 2, 7, 1))
sketch8.addConstraint(Sketcher.Constraint("Coincident", 7, 2, 8, 1))
sketch8.addConstraint(Sketcher.Constraint("Coincident", 8, 2, 9, 1))
sketch8.addConstraint(Sketcher.Constraint("Coincident", 9, 2, 10, 1))
sketch8.addConstraint(Sketcher.Constraint("Coincident", 10, 2, 11, 1))
sketch8.addConstraint(Sketcher.Constraint("Coincident", 11, 2, 6, 1))
sketch8.addConstraint(Sketcher.Constraint("Horizontal", 1))
sketch8.addConstraint(Sketcher.Constraint("Horizontal", 4))
sketch8.addConstraint(Sketcher.Constraint("Horizontal", 7))
sketch8.addConstraint(Sketcher.Constraint("Horizontal", 10))
sketch8.addConstraint(Sketcher.Constraint("Parallel", 0, 3))
sketch8.addConstraint(Sketcher.Constraint("Parallel", 2, 5))
sketch8.addConstraint(Sketcher.Constraint("Parallel", 3, 6))
sketch8.addConstraint(Sketcher.Constraint("Parallel", 5, 8))
sketch8.addConstraint(Sketcher.Constraint("Parallel", 6, 9))
sketch8.addConstraint(Sketcher.Constraint("Parallel", 8, 11))
sketch8.addConstraint(Sketcher.Constraint("Horizontal", 2, 2, 5, 2))
sketch8.addConstraint(Sketcher.Constraint("Horizontal", 4, 2, 6, 2))
sketch8.addConstraint(Sketcher.Constraint("Horizontal", 5, 2, 8, 2))
sketch8.addConstraint(Sketcher.Constraint("Horizontal", 1, 2, 9, 2))
sketch8.addConstraint(Sketcher.Constraint("Horizontal", 8, 2, 11, 2))
sketch8.addConstraint(Sketcher.Constraint("Vertical", 1, 2, 3, 2))
sketch8.addConstraint(Sketcher.Constraint("Vertical", 0, 2, 4, 2))
sketch8.addConstraint(Sketcher.Constraint("Equal", 4, 7))
sketch8.addConstraint(Sketcher.Constraint("Angle", 0, Q("-120 deg")))
sketch8.addConstraint(Sketcher.Constraint("DistanceY", -1, 1, 0, 2, 2.0))
sketch8.addConstraint(Sketcher.Constraint("DistanceY", -1, 1, 2, 2, 10.0))
sketch8.addConstraint(Sketcher.Constraint("DistanceX", 6, 2, 3, 2, 80.0))
sketch8.addConstraint(Sketcher.Constraint("DistanceX", 1, 2, 1, 1, 9.237604))
sketch8.addConstraint(Sketcher.Constraint("DistanceX", -1, 1, 0, 2, 154.618802))
pocket6 = body.newObject("PartDesign::Pocket", "Pocket005")
pocket6.Profile = sketch8
pocket6.setExpression("Length", "Params.pocket6_length")
pocket6.Reversed = True

# Sketch on XZ plane
sketch9 = body.newObject("Sketcher::SketchObject", "Sketch008")
sketch9.AttachmentSupport = (doc.getObject("XZ_Plane"), [""])
sketch9.MapMode = "FlatFace"
sketch9.AttachmentOffset = App.Placement(App.Vector(0, 0, -20), App.Rotation())
sketch9.addGeometry(Part.LineSegment(App.Vector(42, -196, 0), App.Vector(50, -200, 0)), False)
sketch9.addGeometry(Part.LineSegment(App.Vector(50, -200, 0), App.Vector(50, -210, 0)), False)
sketch9.addGeometry(Part.LineSegment(App.Vector(50, -210, 0), App.Vector(42, -214, 0)), False)
sketch9.addGeometry(Part.LineSegment(App.Vector(42, -214, 0), App.Vector(34, -210, 0)), False)
sketch9.addGeometry(Part.LineSegment(App.Vector(34, -210, 0), App.Vector(34, -200, 0)), False)
sketch9.addGeometry(Part.LineSegment(App.Vector(34, -200, 0), App.Vector(42, -196, 0)), False)
sketch9.addGeometry(Part.LineSegment(App.Vector(178, -196, 0), App.Vector(186, -200, 0)), False)
sketch9.addGeometry(Part.LineSegment(App.Vector(186, -200, 0), App.Vector(186, -210, 0)), False)
sketch9.addGeometry(Part.LineSegment(App.Vector(186, -210, 0), App.Vector(178, -214, 0)), False)
sketch9.addGeometry(Part.LineSegment(App.Vector(178, -214, 0), App.Vector(170, -210, 0)), False)
sketch9.addGeometry(Part.LineSegment(App.Vector(170, -210, 0), App.Vector(170, -200, 0)), False)
sketch9.addGeometry(Part.LineSegment(App.Vector(170, -200, 0), App.Vector(178, -196, 0)), False)
sketch9.addGeometry(Part.LineSegment(App.Vector(186, -20, 0), App.Vector(186, -30, 0)), False)
sketch9.addGeometry(Part.LineSegment(App.Vector(186, -30, 0), App.Vector(178, -34, 0)), False)
sketch9.addGeometry(Part.LineSegment(App.Vector(178, -34, 0), App.Vector(170, -30, 0)), False)
sketch9.addGeometry(Part.LineSegment(App.Vector(170, -30, 0), App.Vector(170, -20, 0)), False)
sketch9.addGeometry(Part.LineSegment(App.Vector(170, -20, 0), App.Vector(178, -16, 0)), False)
sketch9.addGeometry(Part.LineSegment(App.Vector(178, -16, 0), App.Vector(186, -20, 0)), False)
sketch9.addGeometry(Part.LineSegment(App.Vector(42, -34, 0), App.Vector(34, -30, 0)), False)
sketch9.addGeometry(Part.LineSegment(App.Vector(34, -30, 0), App.Vector(34, -20, 0)), False)
sketch9.addGeometry(Part.LineSegment(App.Vector(34, -20, 0), App.Vector(42, -16, 0)), False)
sketch9.addGeometry(Part.LineSegment(App.Vector(42, -16, 0), App.Vector(50, -20, 0)), False)
sketch9.addGeometry(Part.LineSegment(App.Vector(50, -20, 0), App.Vector(50, -30, 0)), False)
sketch9.addGeometry(Part.LineSegment(App.Vector(50, -30, 0), App.Vector(42, -34, 0)), False)
sketch9.addConstraint(Sketcher.Constraint("Coincident", 0, 2, 1, 1))
sketch9.addConstraint(Sketcher.Constraint("Coincident", 1, 2, 2, 1))
sketch9.addConstraint(Sketcher.Constraint("Coincident", 2, 2, 3, 1))
sketch9.addConstraint(Sketcher.Constraint("Coincident", 3, 2, 4, 1))
sketch9.addConstraint(Sketcher.Constraint("Coincident", 4, 2, 5, 1))
sketch9.addConstraint(Sketcher.Constraint("Coincident", 5, 2, 0, 1))
sketch9.addConstraint(Sketcher.Constraint("Coincident", 6, 2, 7, 1))
sketch9.addConstraint(Sketcher.Constraint("Coincident", 7, 2, 8, 1))
sketch9.addConstraint(Sketcher.Constraint("Coincident", 8, 2, 9, 1))
sketch9.addConstraint(Sketcher.Constraint("Coincident", 9, 2, 10, 1))
sketch9.addConstraint(Sketcher.Constraint("Coincident", 10, 2, 11, 1))
sketch9.addConstraint(Sketcher.Constraint("Coincident", 11, 2, 6, 1))
sketch9.addConstraint(Sketcher.Constraint("Coincident", 12, 2, 13, 1))
sketch9.addConstraint(Sketcher.Constraint("Coincident", 13, 2, 14, 1))
sketch9.addConstraint(Sketcher.Constraint("Coincident", 14, 2, 15, 1))
sketch9.addConstraint(Sketcher.Constraint("Coincident", 15, 2, 16, 1))
sketch9.addConstraint(Sketcher.Constraint("Coincident", 16, 2, 17, 1))
sketch9.addConstraint(Sketcher.Constraint("Coincident", 17, 2, 12, 1))
sketch9.addConstraint(Sketcher.Constraint("Coincident", 18, 2, 19, 1))
sketch9.addConstraint(Sketcher.Constraint("Coincident", 19, 2, 20, 1))
sketch9.addConstraint(Sketcher.Constraint("Coincident", 20, 2, 21, 1))
sketch9.addConstraint(Sketcher.Constraint("Coincident", 21, 2, 22, 1))
sketch9.addConstraint(Sketcher.Constraint("Coincident", 22, 2, 23, 1))
sketch9.addConstraint(Sketcher.Constraint("Coincident", 23, 2, 18, 1))
sketch9.addConstraint(Sketcher.Constraint("Vertical", 1))
sketch9.addConstraint(Sketcher.Constraint("Vertical", 4))
sketch9.addConstraint(Sketcher.Constraint("Vertical", 7))
sketch9.addConstraint(Sketcher.Constraint("Vertical", 10))
sketch9.addConstraint(Sketcher.Constraint("Vertical", 12))
sketch9.addConstraint(Sketcher.Constraint("Vertical", 15))
sketch9.addConstraint(Sketcher.Constraint("Vertical", 19))
sketch9.addConstraint(Sketcher.Constraint("Vertical", 22))
sketch9.addConstraint(Sketcher.Constraint("Parallel", 0, 3))
sketch9.addConstraint(Sketcher.Constraint("Parallel", 2, 5))
sketch9.addConstraint(Sketcher.Constraint("Parallel", 3, 6))
sketch9.addConstraint(Sketcher.Constraint("Parallel", 5, 8))
sketch9.addConstraint(Sketcher.Constraint("Parallel", 6, 9))
sketch9.addConstraint(Sketcher.Constraint("Parallel", 8, 11))
sketch9.addConstraint(Sketcher.Constraint("Parallel", 11, 13))
sketch9.addConstraint(Sketcher.Constraint("Parallel", 9, 14))
sketch9.addConstraint(Sketcher.Constraint("Parallel", 13, 16))
sketch9.addConstraint(Sketcher.Constraint("Parallel", 14, 17))
sketch9.addConstraint(Sketcher.Constraint("Parallel", 17, 18))
sketch9.addConstraint(Sketcher.Constraint("Parallel", 16, 20))
sketch9.addConstraint(Sketcher.Constraint("Parallel", 18, 21))
sketch9.addConstraint(Sketcher.Constraint("Parallel", 20, 23))
sketch9.addConstraint(Sketcher.Constraint("Horizontal", 1, 2, 3, 2))
sketch9.addConstraint(Sketcher.Constraint("Horizontal", 0, 2, 4, 2))
sketch9.addConstraint(Sketcher.Constraint("Horizontal", 4, 2, 6, 2))
sketch9.addConstraint(Sketcher.Constraint("Horizontal", 3, 2, 7, 2))
sketch9.addConstraint(Sketcher.Constraint("Horizontal", 2, 2, 8, 2))
sketch9.addConstraint(Sketcher.Constraint("Horizontal", 7, 2, 9, 2))
sketch9.addConstraint(Sketcher.Constraint("Horizontal", 6, 2, 10, 2))
sketch9.addConstraint(Sketcher.Constraint("Horizontal", 12, 2, 14, 2))
sketch9.addConstraint(Sketcher.Constraint("Horizontal", 15, 2, 17, 2))
sketch9.addConstraint(Sketcher.Constraint("Horizontal", 14, 2, 18, 2))
sketch9.addConstraint(Sketcher.Constraint("Horizontal", 17, 2, 19, 2))
sketch9.addConstraint(Sketcher.Constraint("Horizontal", 16, 2, 20, 2))
sketch9.addConstraint(Sketcher.Constraint("Horizontal", 19, 2, 21, 2))
sketch9.addConstraint(Sketcher.Constraint("Horizontal", 18, 2, 22, 2))
sketch9.addConstraint(Sketcher.Constraint("Vertical", 2, 2, 5, 2))
sketch9.addConstraint(Sketcher.Constraint("Vertical", 7, 2, 12, 2))
sketch9.addConstraint(Sketcher.Constraint("Vertical", 11, 2, 13, 2))
sketch9.addConstraint(Sketcher.Constraint("Vertical", 4, 2, 18, 2))
sketch9.addConstraint(Sketcher.Constraint("Equal", 10, 12))
sketch9.addConstraint(Sketcher.Constraint("Angle", 0, Q("-30 deg")))
sketch9.addConstraint(Sketcher.Constraint("DistanceX", 2, 2, 1, 2, 8.0))
sketch9.addConstraint(Sketcher.Constraint("DistanceX", 0, 2, 6, 2, 135.0))
sketch9.addConstraint(Sketcher.Constraint("DistanceY", 7, 2, 12, 2, 180.0))
sketch9.addConstraint(Sketcher.Constraint("DistanceX", -1, 1, 0, 2, 50.5))
sketch9.addConstraint(Sketcher.Constraint("DistanceY", 1, 2, 1, 1, 9.237604))
sketch9.addConstraint(Sketcher.Constraint("DistanceY", 0, 2, -1, 1, 200.381198))
pocket7 = body.newObject("PartDesign::Pocket", "Pocket006")
pocket7.Profile = sketch9
pocket7.setExpression("Length", "Params.pocket7_length")
pocket7.Reversed = True

# Sketch on XZ plane
sketch10 = body.newObject("Sketcher::SketchObject", "Sketch009")
sketch10.AttachmentSupport = (doc.getObject("XZ_Plane"), [""])
sketch10.MapMode = "FlatFace"
sketch10.AttachmentOffset = App.Placement(App.Vector(0, 0, -20), App.Rotation())
sketch10.addGeometry(Part.LineSegment(App.Vector(135, -185, 0), App.Vector(85, -185, 0)), False)
sketch10.addGeometry(Part.ArcOfCircle(Part.Circle(App.Vector(85, -175, 0), App.Vector(0, 0, 1), 10), math.radians(90), math.radians(270)), False)
sketch10.addGeometry(Part.LineSegment(App.Vector(85, -165, 0), App.Vector(135, -165, 0)), False)
sketch10.addGeometry(Part.ArcOfCircle(Part.Circle(App.Vector(135, -175, 0), App.Vector(0, 0, 1), 10), math.radians(-90), math.radians(90)), False)
sketch10.addConstraint(Sketcher.Constraint("Tangent", 0, 2, 1, 2))
sketch10.addConstraint(Sketcher.Constraint("Tangent", 1, 1, 2, 1))
sketch10.addConstraint(Sketcher.Constraint("Tangent", 2, 2, 3, 2))
sketch10.addConstraint(Sketcher.Constraint("Tangent", 3, 1, 0, 1))
sketch10.addConstraint(Sketcher.Constraint("Horizontal", 0))
sketch10.addConstraint(Sketcher.Constraint("Horizontal", 2))
sketch10.addConstraint(Sketcher.Constraint("Radius", 1, 10.0))
sketch10.addConstraint(Sketcher.Constraint("DistanceX", 0, 2, 0, 1, 50.0))
sketch10.addConstraint(Sketcher.Constraint("DistanceX", -1, 1, 1, 3, 85.0))
sketch10.addConstraint(Sketcher.Constraint("DistanceY", 1, 3, -1, 1, 175.0))
sketch10.setExpression("Constraints[6]", "Params.sketch10_radius")
sketch10.setExpression("Constraints[7]", "Params.sketch10_width")
pocket8 = body.newObject("PartDesign::Pocket", "Pocket007")
pocket8.Profile = sketch10
pocket8.Type = "ThroughAll"
pocket8.Reversed = True

doc.recompute()
